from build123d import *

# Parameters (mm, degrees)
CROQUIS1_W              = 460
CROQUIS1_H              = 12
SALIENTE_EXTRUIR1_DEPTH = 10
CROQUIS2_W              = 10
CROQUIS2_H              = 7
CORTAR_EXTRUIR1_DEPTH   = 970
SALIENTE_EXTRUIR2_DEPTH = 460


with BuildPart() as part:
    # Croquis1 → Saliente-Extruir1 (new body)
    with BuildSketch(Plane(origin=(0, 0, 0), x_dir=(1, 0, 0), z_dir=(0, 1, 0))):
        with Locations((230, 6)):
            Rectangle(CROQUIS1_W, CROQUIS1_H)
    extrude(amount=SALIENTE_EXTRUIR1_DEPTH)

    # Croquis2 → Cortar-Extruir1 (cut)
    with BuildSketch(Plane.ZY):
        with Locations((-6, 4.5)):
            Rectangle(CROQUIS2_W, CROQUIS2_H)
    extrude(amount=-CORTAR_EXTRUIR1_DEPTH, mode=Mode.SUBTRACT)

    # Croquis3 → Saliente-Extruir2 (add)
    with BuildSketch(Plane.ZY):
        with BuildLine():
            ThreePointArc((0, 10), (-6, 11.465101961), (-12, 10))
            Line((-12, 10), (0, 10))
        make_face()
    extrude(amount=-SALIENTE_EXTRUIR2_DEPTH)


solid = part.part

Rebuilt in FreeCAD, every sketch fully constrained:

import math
import FreeCAD as App
import Part
import Sketcher
from FreeCAD import Vector
Q = App.Units.Quantity

doc = App.newDocument("Part")
body = doc.addObject("PartDesign::Body", "Body")

# Sketch on XZ plane
sketch1 = body.newObject("Sketcher::SketchObject", "Sketch")
sketch1.AttachmentSupport = (doc.getObject("XZ_Plane"), [""])
sketch1.MapMode = "FlatFace"
sketch1.addGeometry(Part.LineSegment(Vector(0, -12, 0), Vector(0, 0, 0)), False)
sketch1.addGeometry(Part.LineSegment(Vector(0, 0, 0), Vector(460, 0, 0)), False)
sketch1.addGeometry(Part.LineSegment(Vector(460, 0, 0), Vector(460, -12, 0)), False)
sketch1.addGeometry(Part.LineSegment(Vector(460, -12, 0), Vector(0, -12, 0)), False)
sketch1.addConstraint(Sketcher.Constraint("Coincident", 0, 2, 1, 1))
sketch1.addConstraint(Sketcher.Constraint("Coincident", 1, 2, 2, 1))
sketch1.addConstraint(Sketcher.Constraint("Coincident", 2, 2, 3, 1))
sketch1.addConstraint(Sketcher.Constraint("Coincident", 3, 2, 0, 1))
sketch1.addConstraint(Sketcher.Constraint("Vertical", 0))
sketch1.addConstraint(Sketcher.Constraint("Horizontal", 1))
sketch1.addConstraint(Sketcher.Constraint("Vertical", 2))
sketch1.addConstraint(Sketcher.Constraint("Horizontal", 3))
sketch1.addConstraint(Sketcher.Constraint("Coincident", 0, 2, -1, 1))
sketch1.addConstraint(Sketcher.Constraint("DistanceX", 1, 1, 1, 2, Q("460 mm")))
sketch1.addConstraint(Sketcher.Constraint("DistanceY", 0, 1, 0, 2, Q("12 mm")))
pad1 = body.newObject("PartDesign::Pad", "Pad")
pad1.Profile = sketch1
pad1.Length = 10
pad1.Reversed = True

# Sketch on YZ plane
sketch2 = body.newObject("Sketcher::SketchObject", "Sketch001")
sketch2.AttachmentSupport = (doc.getObject("YZ_Plane"), [""])
sketch2.MapMode = "FlatFace"
sketch2.addGeometry(Part.LineSegment(Vector(8, -11, 0), Vector(1, -11, 0)), False)
sketch2.addGeometry(Part.LineSegment(Vector(1, -11, 0), Vector(1, -1, 0)), False)
sketch2.addGeometry(Part.LineSegment(Vector(1, -1, 0), Vector(8, -1, 0)), False)
sketch2.addGeometry(Part.LineSegment(Vector(8, -1, 0), Vector(8, -11, 0)), False)
sketch2.addConstraint(Sketcher.Constraint("Coincident", 0, 2, 1, 1))
sketch2.addConstraint(Sketcher.Constraint("Coincident", 1, 2, 2, 1))
sketch2.addConstraint(Sketcher.Constraint("Coincident", 2, 2, 3, 1))
sketch2.addConstraint(Sketcher.Constraint("Coincident", 3, 2, 0, 1))
sketch2.addConstraint(Sketcher.Constraint("Horizontal", 0))
sketch2.addConstraint(Sketcher.Constraint("Vertical", 1))
sketch2.addConstraint(Sketcher.Constraint("Horizontal", 2))
sketch2.addConstraint(Sketcher.Constraint("Vertical", 3))
sketch2.addConstraint(Sketcher.Constraint("DistanceX", 0, 2, 0, 1, Q("7 mm")))
sketch2.addConstraint(Sketcher.Constraint("DistanceY", 1, 1, 1, 2, Q("10 mm")))
sketch2.addConstraint(Sketcher.Constraint("DistanceX", -1, 1, 0, 2, Q("1 mm")))
sketch2.addConstraint(Sketcher.Constraint("DistanceY", 0, 2, -1, 1, Q("11 mm")))
pocket1 = body.newObject("PartDesign::Pocket", "Pocket")
pocket1.Profile = sketch2
pocket1.Length = 970
pocket1.Reversed = True

# Sketch on YZ plane
sketch3 = body.newObject("Sketcher::SketchObject", "Sketch002")
sketch3.AttachmentSupport = (doc.getObject("YZ_Plane"), [""])
sketch3.MapMode = "FlatFace"
sketch3.addGeometry(Part.ArcOfCircle(Part.Circle(Vector(-2, -6, 0), Vector(0, 0, 1), 13), math.radians(-27), math.radians(27)), False)
sketch3.addGeometry(Part.LineSegment(Vector(10, -12, 0), Vector(10, 0, 0)), False)
sketch3.addConstraint(Sketcher.Constraint("Coincident", 0, 1, 1, 1))
sketch3.addConstraint(Sketcher.Constraint("Coincident", 1, 2, 0, 2))
sketch3.addConstraint(Sketcher.Constraint("Vertical", 1))
sketch3.addConstraint(Sketcher.Constraint("PointOnObject", 1, 2, -1))
sketch3.addConstraint(Sketcher.Constraint("DistanceY", 1, 1, 1, 2, Q("12 mm")))
sketch3.addConstraint(Sketcher.Constraint("DistanceX", -1, 1, 0, 1, Q("10 mm")))
sketch3.addConstraint(Sketcher.Constraint("Radius", 0, Q("13.018385 mm")))
pad2 = body.newObject("PartDesign::Pad", "Pad001")
pad2.Profile = sketch3
pad2.Length = 460

doc.recompute()
